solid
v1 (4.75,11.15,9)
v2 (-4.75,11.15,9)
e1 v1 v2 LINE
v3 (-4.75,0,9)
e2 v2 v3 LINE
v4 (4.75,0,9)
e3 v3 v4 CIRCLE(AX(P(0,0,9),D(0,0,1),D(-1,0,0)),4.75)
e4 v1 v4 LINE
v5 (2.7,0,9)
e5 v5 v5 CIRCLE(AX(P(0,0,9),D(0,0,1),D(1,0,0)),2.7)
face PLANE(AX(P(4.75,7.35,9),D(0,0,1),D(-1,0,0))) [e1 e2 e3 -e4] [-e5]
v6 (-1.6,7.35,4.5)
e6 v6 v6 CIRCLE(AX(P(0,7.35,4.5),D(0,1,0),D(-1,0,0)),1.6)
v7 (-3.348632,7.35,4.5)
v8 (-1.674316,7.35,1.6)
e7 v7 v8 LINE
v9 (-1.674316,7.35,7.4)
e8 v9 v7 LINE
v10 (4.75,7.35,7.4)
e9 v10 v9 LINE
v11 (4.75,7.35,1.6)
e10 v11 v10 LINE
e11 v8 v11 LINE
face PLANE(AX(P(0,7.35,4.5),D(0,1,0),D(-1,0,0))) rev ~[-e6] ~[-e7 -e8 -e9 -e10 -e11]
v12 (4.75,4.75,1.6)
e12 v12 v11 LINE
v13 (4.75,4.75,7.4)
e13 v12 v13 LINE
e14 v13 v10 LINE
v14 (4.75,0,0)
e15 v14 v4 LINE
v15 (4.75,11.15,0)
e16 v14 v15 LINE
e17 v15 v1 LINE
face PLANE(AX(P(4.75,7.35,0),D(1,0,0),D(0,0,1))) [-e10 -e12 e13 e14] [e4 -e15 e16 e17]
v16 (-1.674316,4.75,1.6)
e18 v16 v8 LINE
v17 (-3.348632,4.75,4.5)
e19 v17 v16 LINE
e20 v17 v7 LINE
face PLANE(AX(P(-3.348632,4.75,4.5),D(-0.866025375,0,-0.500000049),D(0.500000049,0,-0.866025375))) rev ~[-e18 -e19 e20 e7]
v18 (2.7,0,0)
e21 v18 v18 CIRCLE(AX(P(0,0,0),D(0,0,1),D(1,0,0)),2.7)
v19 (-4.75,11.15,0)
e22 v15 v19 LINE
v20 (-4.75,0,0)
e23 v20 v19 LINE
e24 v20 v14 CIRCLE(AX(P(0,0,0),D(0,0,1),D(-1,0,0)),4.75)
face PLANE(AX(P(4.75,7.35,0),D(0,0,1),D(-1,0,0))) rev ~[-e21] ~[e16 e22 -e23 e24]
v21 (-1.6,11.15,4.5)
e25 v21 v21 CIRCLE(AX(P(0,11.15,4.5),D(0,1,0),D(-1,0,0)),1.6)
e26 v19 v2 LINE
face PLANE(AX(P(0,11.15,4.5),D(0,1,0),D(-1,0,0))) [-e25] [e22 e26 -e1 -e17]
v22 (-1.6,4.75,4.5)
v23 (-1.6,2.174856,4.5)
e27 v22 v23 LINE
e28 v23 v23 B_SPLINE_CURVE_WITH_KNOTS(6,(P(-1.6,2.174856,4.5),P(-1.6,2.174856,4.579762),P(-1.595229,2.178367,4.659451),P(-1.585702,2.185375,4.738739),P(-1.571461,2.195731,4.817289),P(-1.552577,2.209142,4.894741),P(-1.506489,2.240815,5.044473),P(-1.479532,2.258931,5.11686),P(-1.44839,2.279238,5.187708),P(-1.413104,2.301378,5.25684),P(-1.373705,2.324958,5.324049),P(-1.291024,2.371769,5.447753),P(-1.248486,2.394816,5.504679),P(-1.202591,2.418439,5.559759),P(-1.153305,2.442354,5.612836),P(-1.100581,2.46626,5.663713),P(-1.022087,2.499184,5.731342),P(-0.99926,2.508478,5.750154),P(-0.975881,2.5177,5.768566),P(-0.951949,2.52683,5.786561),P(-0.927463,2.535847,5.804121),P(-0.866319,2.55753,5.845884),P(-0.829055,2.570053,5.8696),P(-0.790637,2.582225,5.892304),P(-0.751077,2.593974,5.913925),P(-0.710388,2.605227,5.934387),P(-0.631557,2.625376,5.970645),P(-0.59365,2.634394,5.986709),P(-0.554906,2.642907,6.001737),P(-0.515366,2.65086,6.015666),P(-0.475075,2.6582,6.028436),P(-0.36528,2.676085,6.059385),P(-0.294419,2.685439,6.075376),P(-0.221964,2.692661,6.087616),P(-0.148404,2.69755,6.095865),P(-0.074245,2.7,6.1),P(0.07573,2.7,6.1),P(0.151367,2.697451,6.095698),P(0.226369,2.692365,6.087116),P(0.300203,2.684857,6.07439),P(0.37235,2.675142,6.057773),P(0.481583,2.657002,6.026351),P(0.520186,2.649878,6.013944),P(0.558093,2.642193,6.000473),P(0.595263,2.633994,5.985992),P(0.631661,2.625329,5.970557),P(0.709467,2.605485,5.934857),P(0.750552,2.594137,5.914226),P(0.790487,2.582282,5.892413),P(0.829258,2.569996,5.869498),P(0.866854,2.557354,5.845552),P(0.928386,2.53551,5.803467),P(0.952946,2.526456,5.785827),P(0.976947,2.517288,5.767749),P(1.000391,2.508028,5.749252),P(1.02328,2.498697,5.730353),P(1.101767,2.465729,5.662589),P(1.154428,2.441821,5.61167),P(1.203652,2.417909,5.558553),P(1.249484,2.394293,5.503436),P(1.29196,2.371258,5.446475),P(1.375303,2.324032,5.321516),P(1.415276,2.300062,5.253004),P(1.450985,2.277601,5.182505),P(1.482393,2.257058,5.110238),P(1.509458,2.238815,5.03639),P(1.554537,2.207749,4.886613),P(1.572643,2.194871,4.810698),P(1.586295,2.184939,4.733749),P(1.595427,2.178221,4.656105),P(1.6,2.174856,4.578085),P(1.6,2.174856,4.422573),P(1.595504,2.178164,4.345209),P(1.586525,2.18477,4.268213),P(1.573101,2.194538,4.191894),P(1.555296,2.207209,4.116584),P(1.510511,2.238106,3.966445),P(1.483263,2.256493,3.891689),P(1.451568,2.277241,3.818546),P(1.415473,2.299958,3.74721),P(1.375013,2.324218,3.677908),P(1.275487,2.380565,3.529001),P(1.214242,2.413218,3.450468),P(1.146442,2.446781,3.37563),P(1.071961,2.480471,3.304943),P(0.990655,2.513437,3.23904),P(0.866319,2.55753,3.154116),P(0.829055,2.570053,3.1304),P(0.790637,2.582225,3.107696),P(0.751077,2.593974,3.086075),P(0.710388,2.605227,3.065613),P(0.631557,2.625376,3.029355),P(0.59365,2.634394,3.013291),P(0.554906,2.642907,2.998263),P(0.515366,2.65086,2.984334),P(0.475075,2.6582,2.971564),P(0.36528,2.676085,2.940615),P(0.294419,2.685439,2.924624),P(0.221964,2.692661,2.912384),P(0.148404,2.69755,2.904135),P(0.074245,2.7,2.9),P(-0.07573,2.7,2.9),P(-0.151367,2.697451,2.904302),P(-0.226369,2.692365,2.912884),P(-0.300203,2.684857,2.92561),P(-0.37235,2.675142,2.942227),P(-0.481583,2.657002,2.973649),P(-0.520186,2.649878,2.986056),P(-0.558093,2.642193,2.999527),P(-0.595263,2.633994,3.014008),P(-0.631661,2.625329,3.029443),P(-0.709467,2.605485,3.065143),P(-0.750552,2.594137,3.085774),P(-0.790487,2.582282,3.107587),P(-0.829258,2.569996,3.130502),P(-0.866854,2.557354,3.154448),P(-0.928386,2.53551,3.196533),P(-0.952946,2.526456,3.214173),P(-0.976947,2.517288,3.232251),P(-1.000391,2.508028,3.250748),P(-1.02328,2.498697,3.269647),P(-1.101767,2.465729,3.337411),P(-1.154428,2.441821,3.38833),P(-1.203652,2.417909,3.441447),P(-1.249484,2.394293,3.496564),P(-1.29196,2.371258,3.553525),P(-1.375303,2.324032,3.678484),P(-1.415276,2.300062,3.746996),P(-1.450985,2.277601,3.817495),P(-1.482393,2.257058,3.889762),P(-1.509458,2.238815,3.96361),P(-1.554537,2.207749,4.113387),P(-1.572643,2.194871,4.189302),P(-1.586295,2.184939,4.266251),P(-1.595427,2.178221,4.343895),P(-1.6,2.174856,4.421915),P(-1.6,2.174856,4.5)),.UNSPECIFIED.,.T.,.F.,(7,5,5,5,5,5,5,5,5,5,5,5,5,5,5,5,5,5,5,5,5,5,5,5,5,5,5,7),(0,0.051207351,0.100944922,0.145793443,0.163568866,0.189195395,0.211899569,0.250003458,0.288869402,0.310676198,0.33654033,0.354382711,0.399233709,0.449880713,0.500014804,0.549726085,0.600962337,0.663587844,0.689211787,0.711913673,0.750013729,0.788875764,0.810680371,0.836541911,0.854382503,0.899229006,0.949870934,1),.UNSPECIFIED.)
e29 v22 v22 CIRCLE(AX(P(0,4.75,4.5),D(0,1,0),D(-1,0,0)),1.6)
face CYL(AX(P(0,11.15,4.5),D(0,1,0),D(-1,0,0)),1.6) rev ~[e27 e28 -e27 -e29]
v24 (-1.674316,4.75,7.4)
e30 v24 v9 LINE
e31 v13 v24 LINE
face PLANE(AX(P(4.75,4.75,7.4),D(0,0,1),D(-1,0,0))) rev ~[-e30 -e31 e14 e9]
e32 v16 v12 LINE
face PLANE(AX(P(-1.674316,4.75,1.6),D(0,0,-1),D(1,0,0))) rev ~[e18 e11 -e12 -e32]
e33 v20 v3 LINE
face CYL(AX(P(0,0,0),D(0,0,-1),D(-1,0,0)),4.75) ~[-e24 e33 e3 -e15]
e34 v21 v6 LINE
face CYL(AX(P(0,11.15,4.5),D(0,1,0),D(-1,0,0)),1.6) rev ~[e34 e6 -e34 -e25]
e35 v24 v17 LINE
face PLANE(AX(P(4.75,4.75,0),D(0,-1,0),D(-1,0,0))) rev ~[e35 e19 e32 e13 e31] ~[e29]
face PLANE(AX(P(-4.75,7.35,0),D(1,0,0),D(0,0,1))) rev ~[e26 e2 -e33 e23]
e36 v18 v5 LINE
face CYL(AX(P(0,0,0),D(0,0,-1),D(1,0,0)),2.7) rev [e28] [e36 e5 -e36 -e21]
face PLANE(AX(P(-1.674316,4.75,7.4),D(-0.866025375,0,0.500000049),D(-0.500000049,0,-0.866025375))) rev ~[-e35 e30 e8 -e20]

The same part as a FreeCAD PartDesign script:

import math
import FreeCAD as App
import Part
import Sketcher
Q = App.Units.Quantity


def add_polygon(sketch, points):
    """Adds a closed chain of lines whose ends are joined by coincident constraints."""
    first, n = sketch.GeometryCount, len(points)
    for a, b in zip(points, points[1:] + points[:1]):
        sketch.addGeometry(Part.LineSegment(App.Vector(*a, 0), App.Vector(*b, 0)), False)
    for i in range(n):
        sketch.addConstraint(Sketcher.Constraint("Coincident", first + i, 2, first + (i + 1) % n, 1))

doc = App.newDocument("Part")
params = doc.addObject("Spreadsheet::Sheet", "Params")
for row, (alias, value) in enumerate([
    ("sketch1_diameter", "5.4 mm"),
    ("sketch1_radius", "4.75 mm"),
    ("sketch1_height", "4.75 mm"),
    ("pad1_length", "9 mm"),
    ("sketch2_height", "9 mm"),
    ("sketch2_width", "9.5 mm"),
    ("sketch2_height2", "1.6 mm"),
    ("pad2_length", "2.6 mm"),
    ("sketch3_height", "9 mm"),
    ("sketch3_width", "9.5 mm"),
    ("pad3_length", "3.8 mm"),
    ("sketch4_diameter", "3.2 mm"),
    ("pocket1_length", "9 mm"),
], start=1):
    params.set(f"A{row}", alias)
    params.set(f"B{row}", "=" + value)
    params.setAlias(f"B{row}", alias)

body = doc.addObject("PartDesign::Body", "Body")

# Sketch on XY plane
sketch1 = doc.addObject("Sketcher::SketchObject", "Sketch")
body.addObject(sketch1)
sketch1.AttachmentSupport = (doc.XY_Plane, [""])
sketch1.MapMode = "FlatFace"
sketch1.addGeometry([
    Part.LineSegment(App.Vector(4.8, 0, 0), App.Vector(4.8, 4.8, 0)),  # 0
    Part.LineSegment(App.Vector(4.8, 4.8, 0), App.Vector(-4.8, 4.8, 0)),  # 1
    Part.LineSegment(App.Vector(-4.8, 4.8, 0), App.Vector(-4.8, 0, 0)),  # 2
    Part.ArcOfCircle(Part.Circle(App.Vector(0, 0, 0), App.Vector(0, 0, 1), 4.8), math.radians(180), math.radians(360)),  # 3
    Part.Circle(App.Vector(0, 0, 0), App.Vector(0, 0, 1), 2.7),  # 4
], False)
sketch1.addConstraint([
    Sketcher.Constraint("Coincident", 0, 2, 1, 1),
    Sketcher.Constraint("Coincident", 1, 2, 2, 1),
    Sketcher.Constraint("Tangent", 2, 2, 3, 1),
    Sketcher.Constraint("Tangent", 3, 2, 0, 1),
    Sketcher.Constraint("Vertical", 0),
    Sketcher.Constraint("Horizontal", 1),
    Sketcher.Constraint("Vertical", 2),
    Sketcher.Constraint("Coincident", 3, 3, -1, 1),
    Sketcher.Constraint("Coincident", 4, 3, -1, 1),
    Sketcher.Constraint("Diameter", 4, Q("5.4 mm")),
    Sketcher.Constraint("Radius", 3, Q("4.75 mm")),
    Sketcher.Constraint("DistanceY", 0, 1, 0, 2, Q("4.75 mm")),
])
sketch1.setExpression("Constraints[9]", "Params.sketch1_diameter")
sketch1.setExpression("Constraints[10]", "Params.sketch1_radius")
sketch1.setExpression("Constraints[11]", "Params.sketch1_height")
pad1 = doc.addObject("PartDesign::Pad", "Pad")
body.addObject(pad1)
pad1.Profile = sketch1
pad1.setExpression("Length", "Params.pad1_length")

# Sketch on XZ plane
sketch2 = doc.addObject("Sketcher::SketchObject", "Sketch001")
body.addObject(sketch2)
sketch2.AttachmentSupport = (doc.XZ_Plane, [""])
sketch2.MapMode = "FlatFace"
sketch2.AttachmentOffset = App.Placement(App.Vector(0, 0, -4.75), App.Rotation())
add_polygon(sketch2, [(4.8, 7.4), (-1.7, 7.4), (-3.3, 4.5), (-1.7, 1.6), (4.8, 1.6), (4.8, 0), (-4.8, 0), (-4.8, 9), (4.8, 9)])  # lines 0-8
sketch2.addConstraint([
    Sketcher.Constraint("Horizontal", 0),
    Sketcher.Constraint("Horizontal", 3),
    Sketcher.Constraint("Vertical", 4),
    Sketcher.Constraint("Horizontal", 5),
    Sketcher.Constraint("Vertical", 6),
    Sketcher.Constraint("Horizontal", 7),
    Sketcher.Constraint("Vertical", 8),
    Sketcher.Constraint("Symmetric", 4, 2, 5, 2, -1, 1),
    Sketcher.Constraint("Vertical", 0, 2, 2, 2),
    Sketcher.Constraint("Vertical", 4, 2, 7, 2),
    Sketcher.Constraint("Equal", 4, 8),
    Sketcher.Constraint("Equal", 1, 2),
    Sketcher.Constraint("DistanceY", 6, 1, 6, 2, Q("9 mm")),
    Sketcher.Constraint("Angle", 1, Q("-120.000003 deg")),
    Sketcher.Constraint("DistanceX", 5, 2, 5, 1, Q("9.5 mm")),
    Sketcher.Constraint("DistanceY", 4, 2, 4, 1, Q("1.6 mm")),
    Sketcher.Constraint("DistanceX", 0, 2, 0, 1, Q("6.424316 mm")),
])
sketch2.setExpression("Constraints[21]", "Params.sketch2_height")
sketch2.setExpression("Constraints[23]", "Params.sketch2_width")
sketch2.setExpression("Constraints[24]", "Params.sketch2_height2")
pad2 = doc.addObject("PartDesign::Pad", "Pad001")
body.addObject(pad2)
pad2.Profile = sketch2
pad2.setExpression("Length", "Params.pad2_length")
pad2.Reversed = True

# Sketch on XZ plane
sketch3 = doc.addObject("Sketcher::SketchObject", "Sketch002")
body.addObject(sketch3)
sketch3.AttachmentSupport = (doc.XZ_Plane, [""])
sketch3.MapMode = "FlatFace"
sketch3.AttachmentOffset = App.Placement(App.Vector(0, 0, -7.35), App.Rotation())
add_polygon(sketch3, [(5, 9), (5, 0), (-5, 0), (-5, 9)])  # lines 0-3
sketch3.addConstraint([
    Sketcher.Constraint("Vertical", 0),
    Sketcher.Constraint("Horizontal", 1),
    Sketcher.Constraint("Vertical", 2),
    Sketcher.Constraint("Horizontal", 3),
    Sketcher.Constraint("Symmetric", 0, 2, 1, 2, -1, 1),
    Sketcher.Constraint("DistanceY", 0, 2, 0, 1, Q("9 mm")),
    Sketcher.Constraint("DistanceX", 1, 2, 1, 1, Q("9.5 mm")),
])
sketch3.setExpression("Constraints[9]", "Params.sketch3_height")
sketch3.setExpression("Constraints[10]", "Params.sketch3_width")
pad3 = doc.addObject("PartDesign::Pad", "Pad002")
body.addObject(pad3)
pad3.Profile = sketch3
pad3.setExpression("Length", "Params.pad3_length")
pad3.Reversed = True

# Sketch on XZ plane
sketch4 = doc.addObject("Sketcher::SketchObject", "Sketch003")
body.addObject(sketch4)
sketch4.AttachmentSupport = (doc.XZ_Plane, [""])
sketch4.MapMode = "FlatFace"
sketch4.AttachmentOffset = App.Placement(App.Vector(0, 0, -11.15), App.Rotation())
sketch4.addGeometry(Part.Circle(App.Vector(0, 4.5, 0), App.Vector(0, 0, 1), 1.6), False)
sketch4.addConstraint([
    Sketcher.Constraint("PointOnObject", 0, 3, -2),
    Sketcher.Constraint("Diameter", 0, Q("3.2 mm")),
    Sketcher.Constraint("DistanceY", -1, 1, 0, 3, Q("4.5 mm")),
])
sketch4.setExpression("Constraints[1]", "Params.sketch4_diameter")
pocket1 = doc.addObject("PartDesign::Pocket", "Pocket")
body.addObject(pocket1)
pocket1.Profile = sketch4
pocket1.setExpression("Length", "Params.pocket1_length")
pocket1.Reversed = True

doc.recompute()
